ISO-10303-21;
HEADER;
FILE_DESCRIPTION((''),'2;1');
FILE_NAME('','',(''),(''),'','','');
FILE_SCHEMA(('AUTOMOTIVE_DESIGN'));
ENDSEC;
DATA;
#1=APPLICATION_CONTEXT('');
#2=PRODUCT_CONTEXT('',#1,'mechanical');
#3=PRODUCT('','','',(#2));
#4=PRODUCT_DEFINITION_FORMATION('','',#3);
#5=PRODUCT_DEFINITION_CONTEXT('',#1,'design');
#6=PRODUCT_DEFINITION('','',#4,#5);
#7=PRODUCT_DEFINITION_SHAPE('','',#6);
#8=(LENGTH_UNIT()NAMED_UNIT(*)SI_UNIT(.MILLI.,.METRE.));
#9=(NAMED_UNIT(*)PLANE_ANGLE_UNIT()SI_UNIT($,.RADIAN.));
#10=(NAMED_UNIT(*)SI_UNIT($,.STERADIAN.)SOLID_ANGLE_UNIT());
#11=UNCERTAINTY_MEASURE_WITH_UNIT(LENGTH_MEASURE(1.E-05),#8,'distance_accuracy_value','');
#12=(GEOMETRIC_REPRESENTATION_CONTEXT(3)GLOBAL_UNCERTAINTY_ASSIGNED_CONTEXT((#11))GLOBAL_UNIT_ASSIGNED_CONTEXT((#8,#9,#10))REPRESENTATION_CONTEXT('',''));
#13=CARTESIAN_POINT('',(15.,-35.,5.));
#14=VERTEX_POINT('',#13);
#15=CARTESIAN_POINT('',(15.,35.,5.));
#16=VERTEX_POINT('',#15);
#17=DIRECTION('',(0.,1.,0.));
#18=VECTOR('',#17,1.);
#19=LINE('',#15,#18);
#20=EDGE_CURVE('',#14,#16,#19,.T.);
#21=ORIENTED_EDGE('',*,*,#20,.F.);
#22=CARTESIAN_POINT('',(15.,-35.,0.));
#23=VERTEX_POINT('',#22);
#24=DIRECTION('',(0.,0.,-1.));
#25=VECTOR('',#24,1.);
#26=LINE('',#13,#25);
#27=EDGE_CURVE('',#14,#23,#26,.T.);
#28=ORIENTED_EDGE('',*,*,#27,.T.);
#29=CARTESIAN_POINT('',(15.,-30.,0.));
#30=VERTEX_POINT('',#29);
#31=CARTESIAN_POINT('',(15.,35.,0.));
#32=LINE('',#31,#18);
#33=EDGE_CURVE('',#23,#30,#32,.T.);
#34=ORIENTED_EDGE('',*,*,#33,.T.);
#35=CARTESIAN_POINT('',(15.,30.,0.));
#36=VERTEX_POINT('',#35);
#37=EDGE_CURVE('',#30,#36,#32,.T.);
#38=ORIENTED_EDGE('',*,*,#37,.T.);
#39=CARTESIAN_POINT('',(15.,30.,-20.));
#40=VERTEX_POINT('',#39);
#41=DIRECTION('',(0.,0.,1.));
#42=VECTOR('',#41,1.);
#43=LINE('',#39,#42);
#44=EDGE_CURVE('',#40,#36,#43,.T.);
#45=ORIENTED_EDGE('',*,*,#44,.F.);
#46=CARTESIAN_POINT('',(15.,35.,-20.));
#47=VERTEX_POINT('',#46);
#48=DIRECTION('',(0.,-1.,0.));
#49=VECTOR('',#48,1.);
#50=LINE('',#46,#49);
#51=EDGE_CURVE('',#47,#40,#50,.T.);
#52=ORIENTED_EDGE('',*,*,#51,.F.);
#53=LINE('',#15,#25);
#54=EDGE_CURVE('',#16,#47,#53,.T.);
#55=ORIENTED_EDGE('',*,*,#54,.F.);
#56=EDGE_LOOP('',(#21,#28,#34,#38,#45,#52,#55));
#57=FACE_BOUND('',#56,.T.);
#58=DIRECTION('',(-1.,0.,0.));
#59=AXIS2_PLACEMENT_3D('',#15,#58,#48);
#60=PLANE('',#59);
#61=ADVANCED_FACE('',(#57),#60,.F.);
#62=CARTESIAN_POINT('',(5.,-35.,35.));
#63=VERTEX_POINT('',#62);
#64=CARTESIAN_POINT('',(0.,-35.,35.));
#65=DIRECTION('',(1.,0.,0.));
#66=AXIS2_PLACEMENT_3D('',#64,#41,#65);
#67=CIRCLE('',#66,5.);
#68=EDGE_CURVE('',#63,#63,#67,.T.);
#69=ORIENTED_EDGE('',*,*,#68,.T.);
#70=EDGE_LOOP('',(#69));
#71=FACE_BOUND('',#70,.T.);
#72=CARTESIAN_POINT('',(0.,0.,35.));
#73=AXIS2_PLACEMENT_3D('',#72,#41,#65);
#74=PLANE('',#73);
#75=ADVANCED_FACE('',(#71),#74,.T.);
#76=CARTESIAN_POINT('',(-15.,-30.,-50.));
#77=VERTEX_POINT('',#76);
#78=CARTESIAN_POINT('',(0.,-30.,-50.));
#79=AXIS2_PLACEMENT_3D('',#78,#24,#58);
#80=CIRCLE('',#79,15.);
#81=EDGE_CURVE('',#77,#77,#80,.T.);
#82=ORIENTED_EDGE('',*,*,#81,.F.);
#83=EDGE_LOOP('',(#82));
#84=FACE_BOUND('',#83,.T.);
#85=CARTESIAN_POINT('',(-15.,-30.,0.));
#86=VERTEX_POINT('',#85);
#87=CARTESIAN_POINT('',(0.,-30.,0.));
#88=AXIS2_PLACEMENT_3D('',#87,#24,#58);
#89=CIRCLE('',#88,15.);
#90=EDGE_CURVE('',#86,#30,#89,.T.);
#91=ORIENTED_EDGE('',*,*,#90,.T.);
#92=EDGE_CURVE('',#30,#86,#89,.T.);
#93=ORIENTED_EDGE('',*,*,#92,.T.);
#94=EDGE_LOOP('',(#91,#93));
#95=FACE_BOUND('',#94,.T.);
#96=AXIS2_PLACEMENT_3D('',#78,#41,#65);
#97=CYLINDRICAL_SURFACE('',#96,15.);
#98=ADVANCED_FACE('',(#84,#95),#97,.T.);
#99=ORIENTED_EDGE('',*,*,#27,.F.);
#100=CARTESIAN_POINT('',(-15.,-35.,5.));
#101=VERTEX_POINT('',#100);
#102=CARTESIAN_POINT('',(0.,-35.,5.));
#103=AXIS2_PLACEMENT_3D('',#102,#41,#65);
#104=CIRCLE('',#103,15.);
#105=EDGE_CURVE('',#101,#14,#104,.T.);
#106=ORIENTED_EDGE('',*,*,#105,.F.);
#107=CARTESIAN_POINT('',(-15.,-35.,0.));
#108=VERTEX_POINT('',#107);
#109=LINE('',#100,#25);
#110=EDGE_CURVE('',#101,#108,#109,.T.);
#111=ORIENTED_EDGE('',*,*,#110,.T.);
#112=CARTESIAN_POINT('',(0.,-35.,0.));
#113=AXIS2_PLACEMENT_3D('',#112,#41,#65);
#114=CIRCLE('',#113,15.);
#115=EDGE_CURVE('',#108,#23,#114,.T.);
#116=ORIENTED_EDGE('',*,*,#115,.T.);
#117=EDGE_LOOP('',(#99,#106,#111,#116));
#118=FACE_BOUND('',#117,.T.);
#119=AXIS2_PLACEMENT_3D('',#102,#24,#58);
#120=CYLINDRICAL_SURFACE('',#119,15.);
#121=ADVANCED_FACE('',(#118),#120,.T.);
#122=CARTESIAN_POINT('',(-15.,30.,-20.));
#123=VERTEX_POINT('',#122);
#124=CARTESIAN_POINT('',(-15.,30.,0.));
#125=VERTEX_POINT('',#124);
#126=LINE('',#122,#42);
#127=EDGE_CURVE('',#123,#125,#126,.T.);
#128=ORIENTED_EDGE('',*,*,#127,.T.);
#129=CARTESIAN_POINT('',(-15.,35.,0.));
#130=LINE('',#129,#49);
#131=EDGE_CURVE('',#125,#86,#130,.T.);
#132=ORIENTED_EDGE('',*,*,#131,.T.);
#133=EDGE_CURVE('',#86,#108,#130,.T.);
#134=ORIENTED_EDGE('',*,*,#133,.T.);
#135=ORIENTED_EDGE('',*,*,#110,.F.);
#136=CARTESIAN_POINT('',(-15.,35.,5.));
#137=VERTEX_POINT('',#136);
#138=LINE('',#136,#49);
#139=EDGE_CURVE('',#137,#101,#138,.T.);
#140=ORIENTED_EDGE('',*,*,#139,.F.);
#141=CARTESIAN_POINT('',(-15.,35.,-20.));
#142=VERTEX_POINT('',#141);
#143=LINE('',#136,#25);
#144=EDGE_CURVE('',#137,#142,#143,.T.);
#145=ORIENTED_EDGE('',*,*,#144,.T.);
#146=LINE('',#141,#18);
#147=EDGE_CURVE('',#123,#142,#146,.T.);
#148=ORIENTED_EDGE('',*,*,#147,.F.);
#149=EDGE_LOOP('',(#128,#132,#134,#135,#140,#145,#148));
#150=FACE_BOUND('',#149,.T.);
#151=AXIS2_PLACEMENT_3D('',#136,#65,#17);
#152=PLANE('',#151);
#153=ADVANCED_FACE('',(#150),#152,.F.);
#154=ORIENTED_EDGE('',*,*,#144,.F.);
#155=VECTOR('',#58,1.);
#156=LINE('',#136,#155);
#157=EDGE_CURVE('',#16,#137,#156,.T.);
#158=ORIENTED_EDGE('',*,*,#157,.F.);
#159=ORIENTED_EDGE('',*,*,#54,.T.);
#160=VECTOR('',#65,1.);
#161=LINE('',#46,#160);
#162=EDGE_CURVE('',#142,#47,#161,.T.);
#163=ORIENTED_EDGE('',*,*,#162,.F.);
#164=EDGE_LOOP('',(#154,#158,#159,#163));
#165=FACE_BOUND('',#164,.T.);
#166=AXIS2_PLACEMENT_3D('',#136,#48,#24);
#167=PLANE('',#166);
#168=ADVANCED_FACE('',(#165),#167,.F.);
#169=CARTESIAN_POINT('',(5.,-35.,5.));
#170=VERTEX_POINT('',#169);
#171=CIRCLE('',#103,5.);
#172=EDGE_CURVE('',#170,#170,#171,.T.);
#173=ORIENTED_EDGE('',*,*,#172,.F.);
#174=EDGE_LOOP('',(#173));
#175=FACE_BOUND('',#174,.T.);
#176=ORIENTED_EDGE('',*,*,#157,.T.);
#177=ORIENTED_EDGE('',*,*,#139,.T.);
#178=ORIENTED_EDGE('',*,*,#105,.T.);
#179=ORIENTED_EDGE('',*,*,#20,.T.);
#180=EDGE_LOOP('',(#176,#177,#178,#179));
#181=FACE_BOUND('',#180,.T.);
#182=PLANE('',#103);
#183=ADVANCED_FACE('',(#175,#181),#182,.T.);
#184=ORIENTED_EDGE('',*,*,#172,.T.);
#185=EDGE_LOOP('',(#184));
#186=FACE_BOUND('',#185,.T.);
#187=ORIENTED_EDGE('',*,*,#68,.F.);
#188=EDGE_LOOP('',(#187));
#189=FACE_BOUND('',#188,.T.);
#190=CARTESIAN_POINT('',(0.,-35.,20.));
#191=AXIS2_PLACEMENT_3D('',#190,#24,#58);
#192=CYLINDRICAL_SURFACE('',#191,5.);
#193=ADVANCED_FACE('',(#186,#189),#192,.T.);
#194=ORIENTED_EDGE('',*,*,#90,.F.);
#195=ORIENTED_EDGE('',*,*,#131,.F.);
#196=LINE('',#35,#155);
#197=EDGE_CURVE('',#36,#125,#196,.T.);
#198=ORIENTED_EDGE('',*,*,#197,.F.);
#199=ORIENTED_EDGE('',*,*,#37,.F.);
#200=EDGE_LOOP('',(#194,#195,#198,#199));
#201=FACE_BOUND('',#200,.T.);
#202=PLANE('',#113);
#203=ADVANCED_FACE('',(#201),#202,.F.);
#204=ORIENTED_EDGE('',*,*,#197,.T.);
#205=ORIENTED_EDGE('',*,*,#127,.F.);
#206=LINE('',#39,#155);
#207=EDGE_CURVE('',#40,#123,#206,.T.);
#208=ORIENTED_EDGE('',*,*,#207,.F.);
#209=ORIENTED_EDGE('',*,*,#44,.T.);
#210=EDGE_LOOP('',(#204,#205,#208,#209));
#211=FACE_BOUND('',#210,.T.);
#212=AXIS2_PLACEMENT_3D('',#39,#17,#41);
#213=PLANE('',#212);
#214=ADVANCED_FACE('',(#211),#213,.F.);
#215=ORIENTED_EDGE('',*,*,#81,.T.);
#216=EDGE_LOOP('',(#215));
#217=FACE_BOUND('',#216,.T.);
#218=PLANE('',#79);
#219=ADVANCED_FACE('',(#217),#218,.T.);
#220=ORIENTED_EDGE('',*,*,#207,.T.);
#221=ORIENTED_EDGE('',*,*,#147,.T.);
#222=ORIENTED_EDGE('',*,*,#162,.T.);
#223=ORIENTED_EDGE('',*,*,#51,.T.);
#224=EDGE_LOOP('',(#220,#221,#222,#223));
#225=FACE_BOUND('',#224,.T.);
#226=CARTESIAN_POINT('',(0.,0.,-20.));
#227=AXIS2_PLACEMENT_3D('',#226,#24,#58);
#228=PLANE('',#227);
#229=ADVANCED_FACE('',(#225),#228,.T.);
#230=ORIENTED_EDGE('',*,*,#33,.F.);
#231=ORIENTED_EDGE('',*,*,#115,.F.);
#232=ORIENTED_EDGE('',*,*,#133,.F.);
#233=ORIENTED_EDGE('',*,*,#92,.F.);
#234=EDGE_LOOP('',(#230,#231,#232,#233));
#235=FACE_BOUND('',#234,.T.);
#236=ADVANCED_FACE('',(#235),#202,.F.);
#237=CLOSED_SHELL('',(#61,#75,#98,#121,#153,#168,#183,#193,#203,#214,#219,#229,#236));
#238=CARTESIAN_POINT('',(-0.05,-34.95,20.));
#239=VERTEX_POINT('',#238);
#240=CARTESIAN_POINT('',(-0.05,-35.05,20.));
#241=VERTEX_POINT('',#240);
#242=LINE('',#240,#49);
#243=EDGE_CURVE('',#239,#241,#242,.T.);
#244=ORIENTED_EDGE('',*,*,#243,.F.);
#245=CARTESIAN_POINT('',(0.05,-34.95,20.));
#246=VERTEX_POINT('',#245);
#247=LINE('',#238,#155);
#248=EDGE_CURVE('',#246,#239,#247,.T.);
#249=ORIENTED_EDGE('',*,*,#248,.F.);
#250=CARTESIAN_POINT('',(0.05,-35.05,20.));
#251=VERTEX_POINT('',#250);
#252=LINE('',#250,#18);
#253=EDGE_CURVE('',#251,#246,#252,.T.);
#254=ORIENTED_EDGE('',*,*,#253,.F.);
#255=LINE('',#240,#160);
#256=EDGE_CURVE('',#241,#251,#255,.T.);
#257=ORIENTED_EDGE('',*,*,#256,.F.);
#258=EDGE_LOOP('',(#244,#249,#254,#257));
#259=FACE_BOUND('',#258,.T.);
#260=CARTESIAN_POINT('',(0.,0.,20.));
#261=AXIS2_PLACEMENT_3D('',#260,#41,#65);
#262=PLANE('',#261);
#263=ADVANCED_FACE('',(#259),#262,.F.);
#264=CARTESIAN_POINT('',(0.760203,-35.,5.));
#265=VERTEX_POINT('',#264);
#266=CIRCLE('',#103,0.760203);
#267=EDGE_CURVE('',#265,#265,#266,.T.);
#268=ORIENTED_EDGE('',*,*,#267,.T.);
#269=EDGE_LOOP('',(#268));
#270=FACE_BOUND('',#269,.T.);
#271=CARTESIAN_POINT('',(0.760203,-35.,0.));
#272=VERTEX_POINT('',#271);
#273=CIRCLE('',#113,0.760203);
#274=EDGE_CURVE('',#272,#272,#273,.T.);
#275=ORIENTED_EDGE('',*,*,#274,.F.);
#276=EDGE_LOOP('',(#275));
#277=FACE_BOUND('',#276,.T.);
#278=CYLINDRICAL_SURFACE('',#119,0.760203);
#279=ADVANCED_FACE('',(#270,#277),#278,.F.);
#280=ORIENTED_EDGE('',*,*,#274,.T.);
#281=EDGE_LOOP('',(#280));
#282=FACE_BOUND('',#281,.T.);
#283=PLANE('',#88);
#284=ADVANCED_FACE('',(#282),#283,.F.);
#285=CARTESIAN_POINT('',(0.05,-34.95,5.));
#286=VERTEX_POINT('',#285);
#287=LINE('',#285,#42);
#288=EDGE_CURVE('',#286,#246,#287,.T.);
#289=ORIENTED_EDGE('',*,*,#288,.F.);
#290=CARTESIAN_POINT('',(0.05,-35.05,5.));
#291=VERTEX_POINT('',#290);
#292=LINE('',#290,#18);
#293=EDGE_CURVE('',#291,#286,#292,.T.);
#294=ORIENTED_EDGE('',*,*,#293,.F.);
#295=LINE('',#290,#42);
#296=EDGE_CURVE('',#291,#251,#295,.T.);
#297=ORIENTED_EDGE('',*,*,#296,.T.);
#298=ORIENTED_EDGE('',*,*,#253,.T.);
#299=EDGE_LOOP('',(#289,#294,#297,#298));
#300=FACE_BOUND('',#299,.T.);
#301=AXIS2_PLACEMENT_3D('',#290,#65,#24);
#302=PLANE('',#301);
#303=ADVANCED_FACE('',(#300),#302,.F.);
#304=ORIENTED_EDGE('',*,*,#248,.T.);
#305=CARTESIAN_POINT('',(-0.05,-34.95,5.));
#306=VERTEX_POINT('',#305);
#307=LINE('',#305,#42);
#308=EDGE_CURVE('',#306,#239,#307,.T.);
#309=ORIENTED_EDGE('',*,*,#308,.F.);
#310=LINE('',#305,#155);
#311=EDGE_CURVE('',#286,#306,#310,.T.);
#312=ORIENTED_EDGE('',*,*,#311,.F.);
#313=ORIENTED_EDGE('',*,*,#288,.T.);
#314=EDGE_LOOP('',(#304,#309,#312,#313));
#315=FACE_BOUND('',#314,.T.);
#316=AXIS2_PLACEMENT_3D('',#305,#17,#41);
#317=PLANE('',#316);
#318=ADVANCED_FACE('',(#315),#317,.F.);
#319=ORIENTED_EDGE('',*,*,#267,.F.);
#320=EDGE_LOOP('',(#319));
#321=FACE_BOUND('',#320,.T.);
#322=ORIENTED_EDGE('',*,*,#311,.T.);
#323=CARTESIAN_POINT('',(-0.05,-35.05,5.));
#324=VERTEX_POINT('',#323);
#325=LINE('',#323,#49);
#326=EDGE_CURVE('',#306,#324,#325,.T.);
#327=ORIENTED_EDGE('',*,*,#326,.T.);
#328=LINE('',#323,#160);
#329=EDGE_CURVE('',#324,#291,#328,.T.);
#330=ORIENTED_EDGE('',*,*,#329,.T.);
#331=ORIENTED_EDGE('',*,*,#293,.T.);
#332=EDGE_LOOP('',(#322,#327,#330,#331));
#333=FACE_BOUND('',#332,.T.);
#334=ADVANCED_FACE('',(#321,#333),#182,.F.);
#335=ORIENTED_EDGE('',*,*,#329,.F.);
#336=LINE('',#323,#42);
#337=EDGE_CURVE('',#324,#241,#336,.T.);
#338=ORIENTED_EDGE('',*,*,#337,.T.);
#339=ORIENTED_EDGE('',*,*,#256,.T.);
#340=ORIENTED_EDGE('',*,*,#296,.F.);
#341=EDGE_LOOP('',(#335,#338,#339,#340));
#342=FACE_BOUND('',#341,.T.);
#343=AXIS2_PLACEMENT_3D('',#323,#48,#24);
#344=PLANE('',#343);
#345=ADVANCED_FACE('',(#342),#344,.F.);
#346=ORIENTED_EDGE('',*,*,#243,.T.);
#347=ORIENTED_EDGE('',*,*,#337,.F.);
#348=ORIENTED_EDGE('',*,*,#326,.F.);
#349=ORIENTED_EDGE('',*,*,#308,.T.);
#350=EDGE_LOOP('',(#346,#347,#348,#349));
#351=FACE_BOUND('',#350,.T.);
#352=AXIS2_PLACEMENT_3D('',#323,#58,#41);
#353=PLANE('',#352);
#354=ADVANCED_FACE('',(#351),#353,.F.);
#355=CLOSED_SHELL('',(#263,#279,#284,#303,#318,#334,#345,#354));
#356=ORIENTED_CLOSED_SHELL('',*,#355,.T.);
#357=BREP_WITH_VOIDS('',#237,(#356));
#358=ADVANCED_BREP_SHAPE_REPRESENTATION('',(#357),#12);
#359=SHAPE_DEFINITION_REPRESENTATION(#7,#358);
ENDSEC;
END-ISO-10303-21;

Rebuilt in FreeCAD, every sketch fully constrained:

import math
import FreeCAD as App
import Part
import Sketcher


def add_polygon(sketch, points):
    """Adds a closed chain of lines whose ends are joined by coincident constraints."""
    first, n = sketch.GeometryCount, len(points)
    for a, b in zip(points, points[1:] + points[:1]):
        sketch.addGeometry(Part.LineSegment(App.Vector(*a, 0), App.Vector(*b, 0)), False)
    for i in range(n):
        sketch.addConstraint(Sketcher.Constraint("Coincident", first + i, 2, first + (i + 1) % n, 1))

doc = App.newDocument("Part")
body = doc.addObject("PartDesign::Body", "Body")

# Sketch on XY plane
sketch1 = body.newObject("Sketcher::SketchObject", "Sketch")
sketch1.AttachmentSupport = (doc.getObject("XY_Plane"), [""])
sketch1.MapMode = "FlatFace"
sketch1.addGeometry([
    Part.LineSegment(App.Vector(15, 35, 0), App.Vector(-15, 35, 0)),  # 0
    Part.LineSegment(App.Vector(-15, 35, 0), App.Vector(-15, -35, 0)),  # 1
    Part.ArcOfCircle(Part.Circle(App.Vector(0, -35, 0), App.Vector(0, 0, 1), 15), math.radians(-180), math.radians(0)),  # 2
    Part.LineSegment(App.Vector(15, -35, 0), App.Vector(15, 35, 0)),  # 3
    Part.Circle(App.Vector(0, -35, 0), App.Vector(0, 0, 1), 0.760203),  # 4
], False)
sketch1.addConstraint([
    Sketcher.Constraint("Coincident", 0, 2, 1, 1),
    Sketcher.Constraint("Tangent", 1, 2, 2, 1),
    Sketcher.Constraint("Tangent", 2, 2, 3, 1),
    Sketcher.Constraint("Coincident", 3, 2, 0, 1),
    Sketcher.Constraint("Horizontal", 0),
    Sketcher.Constraint("Vertical", 1),
    Sketcher.Constraint("Vertical", 3),
    Sketcher.Constraint("Coincident", 4, 3, 2, 3),
    Sketcher.Constraint("Symmetric", 0, 2, 2, 2, -1, 1),
    Sketcher.Constraint("Radius", 2, 15.0),
    Sketcher.Constraint("DistanceY", 1, 2, 1, 1, 70.0),
    Sketcher.Constraint("Diameter", 4, 1.520405),
])
pad1 = body.newObject("PartDesign::Pad", "Pad")
pad1.Profile = sketch1
pad1.Length = 5

# Sketch on XY plane
sketch2 = body.newObject("Sketcher::SketchObject", "Sketch001")
sketch2.AttachmentSupport = (doc.getObject("XY_Plane"), [""])
sketch2.MapMode = "FlatFace"
add_polygon(sketch2, [(15, 35), (15, 30), (-15, 30), (-15, 35)])  # lines 0-3
sketch2.addConstraint([
    Sketcher.Constraint("Vertical", 0),
    Sketcher.Constraint("Horizontal", 1),
    Sketcher.Constraint("Vertical", 2),
    Sketcher.Constraint("Horizontal", 3),
    Sketcher.Constraint("DistanceX", 1, 2, 1, 1, 30.0),
    Sketcher.Constraint("DistanceY", 0, 2, 0, 1, 5.0),
    Sketcher.Constraint("DistanceX", -1, 1, 0, 2, 15.0),
    Sketcher.Constraint("DistanceY", -1, 1, 0, 2, 30.0),
])
pad2 = body.newObject("PartDesign::Pad", "Pad001")
pad2.Profile = sketch2
pad2.Length = 20
pad2.Reversed = True

# Sketch on XY plane
sketch3 = body.newObject("Sketcher::SketchObject", "Sketch002")
sketch3.AttachmentSupport = (doc.getObject("XY_Plane"), [""])
sketch3.MapMode = "FlatFace"
sketch3.AttachmentOffset = App.Placement(App.Vector(0, 0, 5), App.Rotation())
sketch3.addGeometry(Part.Circle(App.Vector(0, -35, 0), App.Vector(0, 0, 1), 5), False)
sketch3.addConstraint([
    Sketcher.Constraint("PointOnObject", 0, 3, -2),
    Sketcher.Constraint("Diameter", 0, 10.0),
    Sketcher.Constraint("DistanceY", 0, 3, -1, 1, 35.0),
])
pad3 = body.newObject("PartDesign::Pad", "Pad002")
pad3.Profile = sketch3
pad3.Length = 15

# Sketch on XY plane
sketch4 = body.newObject("Sketcher::SketchObject", "Sketch003")
sketch4.AttachmentSupport = (doc.getObject("XY_Plane"), [""])
sketch4.MapMode = "FlatFace"
sketch4.addGeometry(Part.Circle(App.Vector(0, -30, 0), App.Vector(0, 0, 1), 15), False)
sketch4.addConstraint([
    Sketcher.Constraint("PointOnObject", 0, 3, -2),
    Sketcher.Constraint("Diameter", 0, 30.0),
    Sketcher.Constraint("DistanceY", 0, 3, -1, 1, 30.0),
])
pad4 = body.newObject("PartDesign::Pad", "Pad003")
pad4.Profile = sketch4
pad4.Length = 50
pad4.Reversed = True

# Sketch on XY plane
sketch5 = body.newObject("Sketcher::SketchObject", "Sketch004")
sketch5.AttachmentSupport = (doc.getObject("XY_Plane"), [""])
sketch5.MapMode = "FlatFace"
sketch5.AttachmentOffset = App.Placement(App.Vector(0, 0, 20), App.Rotation())
add_polygon(sketch5, [(-0.05, -34.95), (-0.05, -35.05), (0.05, -35.05), (0.05, -34.95)])  # lines 0-3
sketch5.addConstraint([
    Sketcher.Constraint("Vertical", 0),
    Sketcher.Constraint("Horizontal", 1),
    Sketcher.Constraint("Vertical", 2),
    Sketcher.Constraint("Horizontal", 3),
    Sketcher.Constraint("Equal", 3, 0),
    Sketcher.Constraint("DistanceX", 1, 1, 1, 2, 0.1),
    Sketcher.Constraint("DistanceX", 0, 2, -1, 1, 0.05),
    Sketcher.Constraint("DistanceY", 0, 2, -1, 1, 35.05),
])
pocket1 = body.newObject("PartDesign::Pocket", "Pocket")
pocket1.Profile = sketch5
pocket1.Length = 15

# Sketch on XY plane
sketch6 = body.newObject("Sketcher::SketchObject", "Sketch005")
sketch6.AttachmentSupport = (doc.getObject("XY_Plane"), [""])
sketch6.MapMode = "FlatFace"
sketch6.AttachmentOffset = App.Placement(App.Vector(0, 0, 20), App.Rotation())
sketch6.addGeometry(Part.Circle(App.Vector(0, -35, 0), App.Vector(0, 0, 1), 5), False)
sketch6.addConstraint([
    Sketcher.Constraint("PointOnObject", 0, 3, -2),
    Sketcher.Constraint("Diameter", 0, 10.0),
    Sketcher.Constraint("DistanceY", 0, 3, -1, 1, 35.0),
])
pad5 = body.newObject("PartDesign::Pad", "Pad004")
pad5.Profile = sketch6
pad5.Length = 15

doc.recompute()
